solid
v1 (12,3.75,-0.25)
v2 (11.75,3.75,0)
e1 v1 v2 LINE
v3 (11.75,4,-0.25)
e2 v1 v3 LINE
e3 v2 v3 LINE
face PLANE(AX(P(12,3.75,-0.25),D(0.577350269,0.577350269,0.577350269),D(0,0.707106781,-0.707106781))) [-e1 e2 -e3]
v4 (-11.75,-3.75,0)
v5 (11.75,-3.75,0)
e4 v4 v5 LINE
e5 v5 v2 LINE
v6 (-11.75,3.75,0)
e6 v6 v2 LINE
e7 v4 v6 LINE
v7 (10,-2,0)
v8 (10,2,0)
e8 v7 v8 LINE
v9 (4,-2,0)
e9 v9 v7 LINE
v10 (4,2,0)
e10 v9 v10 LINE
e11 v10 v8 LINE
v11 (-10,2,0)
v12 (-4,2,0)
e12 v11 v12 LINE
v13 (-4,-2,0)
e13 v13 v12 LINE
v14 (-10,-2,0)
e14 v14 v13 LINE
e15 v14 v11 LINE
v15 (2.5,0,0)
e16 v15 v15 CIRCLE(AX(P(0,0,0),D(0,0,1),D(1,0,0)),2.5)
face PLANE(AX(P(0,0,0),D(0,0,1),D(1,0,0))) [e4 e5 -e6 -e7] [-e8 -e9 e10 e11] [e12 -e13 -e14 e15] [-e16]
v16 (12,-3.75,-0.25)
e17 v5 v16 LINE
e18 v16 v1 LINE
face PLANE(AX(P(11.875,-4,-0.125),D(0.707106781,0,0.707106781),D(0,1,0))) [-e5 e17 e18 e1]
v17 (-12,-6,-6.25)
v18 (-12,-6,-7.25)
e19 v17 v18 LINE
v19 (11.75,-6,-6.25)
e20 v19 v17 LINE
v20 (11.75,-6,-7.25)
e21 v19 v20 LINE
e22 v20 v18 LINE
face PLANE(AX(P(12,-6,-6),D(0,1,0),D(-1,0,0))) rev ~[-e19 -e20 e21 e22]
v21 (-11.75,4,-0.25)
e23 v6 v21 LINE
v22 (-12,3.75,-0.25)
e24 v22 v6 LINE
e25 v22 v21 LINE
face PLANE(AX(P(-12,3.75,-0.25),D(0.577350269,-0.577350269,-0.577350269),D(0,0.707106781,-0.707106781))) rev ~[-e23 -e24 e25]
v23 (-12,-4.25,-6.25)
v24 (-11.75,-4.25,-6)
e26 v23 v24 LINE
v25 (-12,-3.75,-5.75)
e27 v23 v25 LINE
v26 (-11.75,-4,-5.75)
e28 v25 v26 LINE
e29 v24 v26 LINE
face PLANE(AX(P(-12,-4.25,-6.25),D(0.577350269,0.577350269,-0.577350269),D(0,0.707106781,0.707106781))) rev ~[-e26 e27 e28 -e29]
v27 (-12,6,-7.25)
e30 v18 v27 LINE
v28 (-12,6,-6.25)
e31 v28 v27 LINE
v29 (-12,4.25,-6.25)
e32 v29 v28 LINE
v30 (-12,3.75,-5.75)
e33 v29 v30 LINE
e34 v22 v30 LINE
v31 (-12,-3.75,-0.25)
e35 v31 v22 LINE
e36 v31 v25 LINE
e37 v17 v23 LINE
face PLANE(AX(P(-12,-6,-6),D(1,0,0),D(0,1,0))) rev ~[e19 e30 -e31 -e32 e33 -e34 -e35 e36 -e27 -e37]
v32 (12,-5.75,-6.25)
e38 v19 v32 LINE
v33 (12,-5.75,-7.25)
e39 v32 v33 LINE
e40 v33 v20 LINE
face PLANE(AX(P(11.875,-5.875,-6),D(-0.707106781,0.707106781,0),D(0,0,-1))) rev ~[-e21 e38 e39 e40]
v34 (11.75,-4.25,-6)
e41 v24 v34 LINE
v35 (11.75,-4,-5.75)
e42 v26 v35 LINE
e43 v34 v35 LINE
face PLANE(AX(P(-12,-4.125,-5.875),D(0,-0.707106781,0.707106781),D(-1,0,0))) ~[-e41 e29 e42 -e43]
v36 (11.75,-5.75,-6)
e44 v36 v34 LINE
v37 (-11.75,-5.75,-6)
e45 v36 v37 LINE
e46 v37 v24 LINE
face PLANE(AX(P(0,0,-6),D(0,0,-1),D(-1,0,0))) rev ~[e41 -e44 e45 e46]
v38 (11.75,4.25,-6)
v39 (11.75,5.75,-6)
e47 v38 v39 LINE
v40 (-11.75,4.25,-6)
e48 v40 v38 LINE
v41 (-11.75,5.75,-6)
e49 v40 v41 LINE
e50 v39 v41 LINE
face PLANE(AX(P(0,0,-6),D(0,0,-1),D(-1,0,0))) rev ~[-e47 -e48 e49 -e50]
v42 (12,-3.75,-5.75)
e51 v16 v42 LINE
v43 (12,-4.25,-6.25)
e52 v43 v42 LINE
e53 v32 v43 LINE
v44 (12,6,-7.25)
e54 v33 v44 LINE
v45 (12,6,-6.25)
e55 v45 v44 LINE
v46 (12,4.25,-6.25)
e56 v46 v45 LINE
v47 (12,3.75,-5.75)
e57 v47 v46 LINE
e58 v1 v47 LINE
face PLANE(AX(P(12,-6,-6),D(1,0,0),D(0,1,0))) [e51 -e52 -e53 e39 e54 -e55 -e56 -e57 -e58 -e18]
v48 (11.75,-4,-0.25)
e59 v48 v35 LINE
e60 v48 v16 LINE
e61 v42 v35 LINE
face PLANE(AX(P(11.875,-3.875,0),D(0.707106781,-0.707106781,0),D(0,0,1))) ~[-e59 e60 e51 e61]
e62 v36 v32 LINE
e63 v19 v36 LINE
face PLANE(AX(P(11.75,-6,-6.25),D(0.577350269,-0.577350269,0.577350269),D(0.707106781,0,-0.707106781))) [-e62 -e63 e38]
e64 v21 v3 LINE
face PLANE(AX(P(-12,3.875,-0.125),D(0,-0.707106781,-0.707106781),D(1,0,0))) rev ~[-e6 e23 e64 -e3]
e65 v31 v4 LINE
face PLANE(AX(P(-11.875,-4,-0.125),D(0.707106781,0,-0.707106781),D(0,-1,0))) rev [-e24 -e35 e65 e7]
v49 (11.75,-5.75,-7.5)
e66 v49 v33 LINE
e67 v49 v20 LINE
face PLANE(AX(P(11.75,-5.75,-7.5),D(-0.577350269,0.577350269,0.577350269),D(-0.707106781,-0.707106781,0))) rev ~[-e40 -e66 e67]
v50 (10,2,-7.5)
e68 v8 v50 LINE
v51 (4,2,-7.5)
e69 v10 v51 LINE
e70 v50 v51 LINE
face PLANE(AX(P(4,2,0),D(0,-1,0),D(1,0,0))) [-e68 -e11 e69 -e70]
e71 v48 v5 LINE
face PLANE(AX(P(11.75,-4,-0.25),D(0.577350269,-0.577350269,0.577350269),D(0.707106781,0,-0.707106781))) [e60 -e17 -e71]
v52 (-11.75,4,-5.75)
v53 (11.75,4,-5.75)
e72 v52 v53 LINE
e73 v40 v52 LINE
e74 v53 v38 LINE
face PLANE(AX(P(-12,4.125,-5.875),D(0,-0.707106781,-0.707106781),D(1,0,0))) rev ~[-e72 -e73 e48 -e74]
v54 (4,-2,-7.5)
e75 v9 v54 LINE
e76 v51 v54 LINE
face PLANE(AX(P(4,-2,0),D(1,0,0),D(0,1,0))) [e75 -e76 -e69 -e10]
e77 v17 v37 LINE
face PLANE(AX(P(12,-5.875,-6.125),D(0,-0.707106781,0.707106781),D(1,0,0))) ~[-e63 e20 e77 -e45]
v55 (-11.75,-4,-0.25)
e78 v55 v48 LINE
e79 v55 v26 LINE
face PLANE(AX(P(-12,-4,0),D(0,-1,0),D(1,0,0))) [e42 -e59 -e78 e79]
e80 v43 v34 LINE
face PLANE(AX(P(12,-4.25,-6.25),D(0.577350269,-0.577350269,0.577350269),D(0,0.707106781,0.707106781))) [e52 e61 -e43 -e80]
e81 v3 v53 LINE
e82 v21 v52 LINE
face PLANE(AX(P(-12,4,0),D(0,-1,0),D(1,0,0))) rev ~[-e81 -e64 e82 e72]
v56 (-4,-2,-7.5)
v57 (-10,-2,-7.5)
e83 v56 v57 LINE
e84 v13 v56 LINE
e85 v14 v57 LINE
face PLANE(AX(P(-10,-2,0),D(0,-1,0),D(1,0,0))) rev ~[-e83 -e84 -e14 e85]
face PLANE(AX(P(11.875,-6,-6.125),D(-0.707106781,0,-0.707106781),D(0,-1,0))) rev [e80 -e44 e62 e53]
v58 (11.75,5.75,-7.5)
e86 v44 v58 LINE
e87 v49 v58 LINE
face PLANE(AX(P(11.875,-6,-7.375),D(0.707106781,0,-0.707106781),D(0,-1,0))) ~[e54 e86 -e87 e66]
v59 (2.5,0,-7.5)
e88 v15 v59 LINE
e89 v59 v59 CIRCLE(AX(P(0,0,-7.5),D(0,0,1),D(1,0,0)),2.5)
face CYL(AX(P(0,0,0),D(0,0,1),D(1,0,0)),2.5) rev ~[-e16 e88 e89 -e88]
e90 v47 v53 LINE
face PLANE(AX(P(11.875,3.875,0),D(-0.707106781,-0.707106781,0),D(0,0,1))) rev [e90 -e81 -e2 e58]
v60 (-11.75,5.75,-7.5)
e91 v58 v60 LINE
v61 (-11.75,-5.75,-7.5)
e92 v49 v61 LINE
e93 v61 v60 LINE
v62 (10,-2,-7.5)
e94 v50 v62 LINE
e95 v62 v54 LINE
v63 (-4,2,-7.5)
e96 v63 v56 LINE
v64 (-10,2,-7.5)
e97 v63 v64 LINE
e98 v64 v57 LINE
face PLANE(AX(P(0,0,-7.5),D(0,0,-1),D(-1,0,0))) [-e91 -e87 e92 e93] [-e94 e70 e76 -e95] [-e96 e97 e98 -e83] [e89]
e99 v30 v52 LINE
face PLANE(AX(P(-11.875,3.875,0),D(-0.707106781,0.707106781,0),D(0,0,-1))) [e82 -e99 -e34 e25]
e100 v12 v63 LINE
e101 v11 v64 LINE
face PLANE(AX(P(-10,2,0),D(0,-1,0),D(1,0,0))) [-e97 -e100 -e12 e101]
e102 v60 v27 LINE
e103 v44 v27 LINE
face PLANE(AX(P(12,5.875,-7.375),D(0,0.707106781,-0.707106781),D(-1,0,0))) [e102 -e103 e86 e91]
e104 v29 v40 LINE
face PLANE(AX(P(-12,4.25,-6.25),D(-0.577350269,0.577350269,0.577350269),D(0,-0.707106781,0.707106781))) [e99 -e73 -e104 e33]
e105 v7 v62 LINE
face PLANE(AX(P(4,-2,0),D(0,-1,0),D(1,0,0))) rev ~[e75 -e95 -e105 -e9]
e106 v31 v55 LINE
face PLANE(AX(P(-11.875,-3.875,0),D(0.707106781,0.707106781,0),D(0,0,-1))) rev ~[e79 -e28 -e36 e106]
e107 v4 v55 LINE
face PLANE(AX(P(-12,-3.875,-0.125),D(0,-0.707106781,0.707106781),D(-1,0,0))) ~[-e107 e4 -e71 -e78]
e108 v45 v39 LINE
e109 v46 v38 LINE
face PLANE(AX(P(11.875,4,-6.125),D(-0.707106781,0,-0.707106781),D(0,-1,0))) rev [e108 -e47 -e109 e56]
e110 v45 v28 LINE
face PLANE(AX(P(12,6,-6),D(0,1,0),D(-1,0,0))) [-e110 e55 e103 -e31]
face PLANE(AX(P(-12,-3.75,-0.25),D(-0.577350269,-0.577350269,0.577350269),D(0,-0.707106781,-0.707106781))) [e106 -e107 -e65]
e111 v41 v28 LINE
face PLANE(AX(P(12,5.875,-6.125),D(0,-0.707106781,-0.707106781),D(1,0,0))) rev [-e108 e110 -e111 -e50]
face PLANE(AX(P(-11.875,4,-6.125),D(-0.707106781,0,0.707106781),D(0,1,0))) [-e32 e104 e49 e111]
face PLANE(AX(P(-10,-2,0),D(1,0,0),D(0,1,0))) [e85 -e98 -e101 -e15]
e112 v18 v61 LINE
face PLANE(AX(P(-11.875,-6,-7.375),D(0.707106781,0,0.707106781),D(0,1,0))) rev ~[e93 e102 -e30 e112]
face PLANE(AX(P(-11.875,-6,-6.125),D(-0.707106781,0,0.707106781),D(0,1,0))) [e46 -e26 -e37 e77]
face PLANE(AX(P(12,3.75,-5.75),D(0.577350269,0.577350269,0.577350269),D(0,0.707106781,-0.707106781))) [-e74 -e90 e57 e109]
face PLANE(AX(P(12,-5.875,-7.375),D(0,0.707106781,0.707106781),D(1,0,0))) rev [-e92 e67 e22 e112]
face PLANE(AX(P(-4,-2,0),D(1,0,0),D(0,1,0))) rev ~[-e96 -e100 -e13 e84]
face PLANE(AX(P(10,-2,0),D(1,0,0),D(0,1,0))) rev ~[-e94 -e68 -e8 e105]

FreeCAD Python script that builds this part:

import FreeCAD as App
import Part
import Sketcher

V = App.Vector
Q = App.Units.Quantity


def edges_at(feature, points):
    """Names of the edges that pass closest to the given points."""
    edges = feature.Shape.Edges
    near = lambda p: min(range(len(edges)), key=lambda i: edges[i].distToShape(Part.Vertex(*p))[0])
    return sorted({f"Edge{near(p) + 1}" for p in points})

doc = App.newDocument("Part")
params = doc.addObject("Spreadsheet::Sheet", "Params")
for row, (alias, value) in enumerate([
    ("sketch1_width", "24 mm"),
    ("sketch1_height", "8 mm"),
    ("pad1_length", "6 mm"),
    ("sketch2_width", "24 mm"),
    ("sketch2_height", "12 mm"),
    ("pad2_length", "1.5 mm"),
    ("sketch3_diameter", "5 mm"),
    ("sketch3_width", "6 mm"),
    ("sketch3_height", "4 mm"),
    ("chamfer_size", "0.25 mm"),
], start=1):
    params.set(f"A{row}", alias)
    params.set(f"B{row}", "=" + value)
    params.setAlias(f"B{row}", alias)

body = doc.addObject("PartDesign::Body", "Body")

# Sketch on XY plane
sketch1 = doc.addObject("Sketcher::SketchObject", "Sketch")
body.addObject(sketch1)
sketch1.AttachmentSupport = (doc.XY_Plane, [""])
sketch1.MapMode = "FlatFace"
sketch1.addGeometry([
    Part.LineSegment(V(-12, 4, 0), V(-12, -4, 0)),
    Part.LineSegment(V(-12, -4, 0), V(12, -4, 0)),
    Part.LineSegment(V(12, -4, 0), V(12, 4, 0)),
    Part.LineSegment(V(12, 4, 0), V(-12, 4, 0)),
], False)
sketch1.addConstraint([
    Sketcher.Constraint("Coincident", 0, 2, 1, 1),
    Sketcher.Constraint("Coincident", 1, 2, 2, 1),
    Sketcher.Constraint("Coincident", 2, 2, 3, 1),
    Sketcher.Constraint("Coincident", 3, 2, 0, 1),
    Sketcher.Constraint("Vertical", 0),
    Sketcher.Constraint("Horizontal", 1),
    Sketcher.Constraint("Vertical", 2),
    Sketcher.Constraint("Horizontal", 3),
    Sketcher.Constraint("Symmetric", 0, 2, 2, 2, -1, 1),
    Sketcher.Constraint("DistanceX", 1, 1, 1, 2, Q("24 mm")),
    Sketcher.Constraint("DistanceY", 0, 2, 0, 1, Q("8 mm")),
])
sketch1.setExpression("Constraints[9]", "Params.sketch1_width")
sketch1.setExpression("Constraints[10]", "Params.sketch1_height")
pad1 = doc.addObject("PartDesign::Pad", "Pad")
body.addObject(pad1)
pad1.Profile = sketch1
pad1.setExpression("Length", "Params.pad1_length")
pad1.Reversed = True

# Sketch on XY plane
sketch2 = doc.addObject("Sketcher::SketchObject", "Sketch001")
body.addObject(sketch2)
sketch2.AttachmentSupport = (doc.XY_Plane, [""])
sketch2.MapMode = "FlatFace"
sketch2.AttachmentOffset = App.Placement(V(0, 0, -6), App.Rotation())
sketch2.addGeometry([
    Part.LineSegment(V(12, 6, 0), V(12, -6, 0)),
    Part.LineSegment(V(12, -6, 0), V(-12, -6, 0)),
    Part.LineSegment(V(-12, -6, 0), V(-12, 6, 0)),
    Part.LineSegment(V(-12, 6, 0), V(12, 6, 0)),
], False)
sketch2.addConstraint([
    Sketcher.Constraint("Coincident", 0, 2, 1, 1),
    Sketcher.Constraint("Coincident", 1, 2, 2, 1),
    Sketcher.Constraint("Coincident", 2, 2, 3, 1),
    Sketcher.Constraint("Coincident", 3, 2, 0, 1),
    Sketcher.Constraint("Vertical", 0),
    Sketcher.Constraint("Horizontal", 1),
    Sketcher.Constraint("Vertical", 2),
    Sketcher.Constraint("Horizontal", 3),
    Sketcher.Constraint("Symmetric", 0, 2, 2, 2, -1, 1),
    Sketcher.Constraint("DistanceX", 1, 2, 1, 1, Q("24 mm")),
    Sketcher.Constraint("DistanceY", 0, 2, 0, 1, Q("12 mm")),
])
sketch2.setExpression("Constraints[9]", "Params.sketch2_width")
sketch2.setExpression("Constraints[10]", "Params.sketch2_height")
pad2 = doc.addObject("PartDesign::Pad", "Pad001")
body.addObject(pad2)
pad2.Profile = sketch2
pad2.setExpression("Length", "Params.pad2_length")
pad2.Reversed = True

# Sketch on XY plane
sketch3 = doc.addObject("Sketcher::SketchObject", "Sketch002")
body.addObject(sketch3)
sketch3.AttachmentSupport = (doc.XY_Plane, [""])
sketch3.MapMode = "FlatFace"
sketch3.addGeometry([
    Part.Circle(V(0, 0, 0), V(0, 0, 1), 2.5),  # 0
    Part.LineSegment(V(-10, 2, 0), V(-10, -2, 0)),  # 1
    Part.LineSegment(V(-10, -2, 0), V(-4, -2, 0)),  # 2
    Part.LineSegment(V(-4, -2, 0), V(-4, 2, 0)),  # 3
    Part.LineSegment(V(-4, 2, 0), V(-10, 2, 0)),  # 4
    Part.LineSegment(V(4, 2, 0), V(4, -2, 0)),  # 5
    Part.LineSegment(V(4, -2, 0), V(10, -2, 0)),  # 6
    Part.LineSegment(V(10, -2, 0), V(10, 2, 0)),  # 7
    Part.LineSegment(V(10, 2, 0), V(4, 2, 0)),  # 8
], False)
sketch3.addConstraint([
    Sketcher.Constraint("Coincident", 1, 2, 2, 1),
    Sketcher.Constraint("Coincident", 2, 2, 3, 1),
    Sketcher.Constraint("Coincident", 3, 2, 4, 1),
    Sketcher.Constraint("Coincident", 4, 2, 1, 1),
    Sketcher.Constraint("Coincident", 5, 2, 6, 1),
    Sketcher.Constraint("Coincident", 6, 2, 7, 1),
    Sketcher.Constraint("Coincident", 7, 2, 8, 1),
    Sketcher.Constraint("Coincident", 8, 2, 5, 1),
    Sketcher.Constraint("Vertical", 1),
    Sketcher.Constraint("Horizontal", 2),
    Sketcher.Constraint("Vertical", 3),
    Sketcher.Constraint("Horizontal", 4),
    Sketcher.Constraint("Vertical", 5),
    Sketcher.Constraint("Horizontal", 6),
    Sketcher.Constraint("Vertical", 7),
    Sketcher.Constraint("Horizontal", 8),
    Sketcher.Constraint("Coincident", 0, 3, -1, 1),
    Sketcher.Constraint("Symmetric", 3, 2, 5, 2, -1, 1),
    Sketcher.Constraint("Symmetric", 1, 2, 7, 2, -1, 1),
    Sketcher.Constraint("Horizontal", 2, 2, 5, 2),
    Sketcher.Constraint("Diameter", 0, Q("5 mm")),
    Sketcher.Constraint("DistanceX", 2, 1, 2, 2, Q("6 mm")),
    Sketcher.Constraint("DistanceY", 1, 2, 1, 1, Q("4 mm")),
    Sketcher.Constraint("DistanceX", 1, 2, -1, 1, Q("10 mm")),
])
sketch3.setExpression("Constraints[20]", "Params.sketch3_diameter")
sketch3.setExpression("Constraints[21]", "Params.sketch3_width")
sketch3.setExpression("Constraints[22]", "Params.sketch3_height")
pocket1 = doc.addObject("PartDesign::Pocket", "Pocket")
body.addObject(pocket1)
pocket1.Profile = sketch3
pocket1.Type = "ThroughAll"
doc.recompute()

chamfer = doc.addObject("PartDesign::Chamfer", "Chamfer")
body.addObject(chamfer)
chamfer.Base = (pocket1, edges_at(pocket1, [
    (12, 5, -6),
    (12, -5, -6),
    (0, -6, -6),
    (12, -6, -6.75),
    (-12, -5, -6),
    (0, 4, -6),
    (-12, 5, -6),
    (0, 6, -6),
    (12, 0, -7.5),
    (0, -6, -7.5),
    (-12, 0, -7.5),
    (0, 6, -7.5),
    (0, 4, 0),
    (12, 0, 0),
    (0, -4, 0),
    (-12, 0, 0),
    (-12, 4, -3),
    (12, 4, -3),
    (12, -4, -3),
    (-12, -4, -3),
    (0, -4, -6),
]))
chamfer.setExpression("Size", "Params.chamfer_size")

doc.recompute()
